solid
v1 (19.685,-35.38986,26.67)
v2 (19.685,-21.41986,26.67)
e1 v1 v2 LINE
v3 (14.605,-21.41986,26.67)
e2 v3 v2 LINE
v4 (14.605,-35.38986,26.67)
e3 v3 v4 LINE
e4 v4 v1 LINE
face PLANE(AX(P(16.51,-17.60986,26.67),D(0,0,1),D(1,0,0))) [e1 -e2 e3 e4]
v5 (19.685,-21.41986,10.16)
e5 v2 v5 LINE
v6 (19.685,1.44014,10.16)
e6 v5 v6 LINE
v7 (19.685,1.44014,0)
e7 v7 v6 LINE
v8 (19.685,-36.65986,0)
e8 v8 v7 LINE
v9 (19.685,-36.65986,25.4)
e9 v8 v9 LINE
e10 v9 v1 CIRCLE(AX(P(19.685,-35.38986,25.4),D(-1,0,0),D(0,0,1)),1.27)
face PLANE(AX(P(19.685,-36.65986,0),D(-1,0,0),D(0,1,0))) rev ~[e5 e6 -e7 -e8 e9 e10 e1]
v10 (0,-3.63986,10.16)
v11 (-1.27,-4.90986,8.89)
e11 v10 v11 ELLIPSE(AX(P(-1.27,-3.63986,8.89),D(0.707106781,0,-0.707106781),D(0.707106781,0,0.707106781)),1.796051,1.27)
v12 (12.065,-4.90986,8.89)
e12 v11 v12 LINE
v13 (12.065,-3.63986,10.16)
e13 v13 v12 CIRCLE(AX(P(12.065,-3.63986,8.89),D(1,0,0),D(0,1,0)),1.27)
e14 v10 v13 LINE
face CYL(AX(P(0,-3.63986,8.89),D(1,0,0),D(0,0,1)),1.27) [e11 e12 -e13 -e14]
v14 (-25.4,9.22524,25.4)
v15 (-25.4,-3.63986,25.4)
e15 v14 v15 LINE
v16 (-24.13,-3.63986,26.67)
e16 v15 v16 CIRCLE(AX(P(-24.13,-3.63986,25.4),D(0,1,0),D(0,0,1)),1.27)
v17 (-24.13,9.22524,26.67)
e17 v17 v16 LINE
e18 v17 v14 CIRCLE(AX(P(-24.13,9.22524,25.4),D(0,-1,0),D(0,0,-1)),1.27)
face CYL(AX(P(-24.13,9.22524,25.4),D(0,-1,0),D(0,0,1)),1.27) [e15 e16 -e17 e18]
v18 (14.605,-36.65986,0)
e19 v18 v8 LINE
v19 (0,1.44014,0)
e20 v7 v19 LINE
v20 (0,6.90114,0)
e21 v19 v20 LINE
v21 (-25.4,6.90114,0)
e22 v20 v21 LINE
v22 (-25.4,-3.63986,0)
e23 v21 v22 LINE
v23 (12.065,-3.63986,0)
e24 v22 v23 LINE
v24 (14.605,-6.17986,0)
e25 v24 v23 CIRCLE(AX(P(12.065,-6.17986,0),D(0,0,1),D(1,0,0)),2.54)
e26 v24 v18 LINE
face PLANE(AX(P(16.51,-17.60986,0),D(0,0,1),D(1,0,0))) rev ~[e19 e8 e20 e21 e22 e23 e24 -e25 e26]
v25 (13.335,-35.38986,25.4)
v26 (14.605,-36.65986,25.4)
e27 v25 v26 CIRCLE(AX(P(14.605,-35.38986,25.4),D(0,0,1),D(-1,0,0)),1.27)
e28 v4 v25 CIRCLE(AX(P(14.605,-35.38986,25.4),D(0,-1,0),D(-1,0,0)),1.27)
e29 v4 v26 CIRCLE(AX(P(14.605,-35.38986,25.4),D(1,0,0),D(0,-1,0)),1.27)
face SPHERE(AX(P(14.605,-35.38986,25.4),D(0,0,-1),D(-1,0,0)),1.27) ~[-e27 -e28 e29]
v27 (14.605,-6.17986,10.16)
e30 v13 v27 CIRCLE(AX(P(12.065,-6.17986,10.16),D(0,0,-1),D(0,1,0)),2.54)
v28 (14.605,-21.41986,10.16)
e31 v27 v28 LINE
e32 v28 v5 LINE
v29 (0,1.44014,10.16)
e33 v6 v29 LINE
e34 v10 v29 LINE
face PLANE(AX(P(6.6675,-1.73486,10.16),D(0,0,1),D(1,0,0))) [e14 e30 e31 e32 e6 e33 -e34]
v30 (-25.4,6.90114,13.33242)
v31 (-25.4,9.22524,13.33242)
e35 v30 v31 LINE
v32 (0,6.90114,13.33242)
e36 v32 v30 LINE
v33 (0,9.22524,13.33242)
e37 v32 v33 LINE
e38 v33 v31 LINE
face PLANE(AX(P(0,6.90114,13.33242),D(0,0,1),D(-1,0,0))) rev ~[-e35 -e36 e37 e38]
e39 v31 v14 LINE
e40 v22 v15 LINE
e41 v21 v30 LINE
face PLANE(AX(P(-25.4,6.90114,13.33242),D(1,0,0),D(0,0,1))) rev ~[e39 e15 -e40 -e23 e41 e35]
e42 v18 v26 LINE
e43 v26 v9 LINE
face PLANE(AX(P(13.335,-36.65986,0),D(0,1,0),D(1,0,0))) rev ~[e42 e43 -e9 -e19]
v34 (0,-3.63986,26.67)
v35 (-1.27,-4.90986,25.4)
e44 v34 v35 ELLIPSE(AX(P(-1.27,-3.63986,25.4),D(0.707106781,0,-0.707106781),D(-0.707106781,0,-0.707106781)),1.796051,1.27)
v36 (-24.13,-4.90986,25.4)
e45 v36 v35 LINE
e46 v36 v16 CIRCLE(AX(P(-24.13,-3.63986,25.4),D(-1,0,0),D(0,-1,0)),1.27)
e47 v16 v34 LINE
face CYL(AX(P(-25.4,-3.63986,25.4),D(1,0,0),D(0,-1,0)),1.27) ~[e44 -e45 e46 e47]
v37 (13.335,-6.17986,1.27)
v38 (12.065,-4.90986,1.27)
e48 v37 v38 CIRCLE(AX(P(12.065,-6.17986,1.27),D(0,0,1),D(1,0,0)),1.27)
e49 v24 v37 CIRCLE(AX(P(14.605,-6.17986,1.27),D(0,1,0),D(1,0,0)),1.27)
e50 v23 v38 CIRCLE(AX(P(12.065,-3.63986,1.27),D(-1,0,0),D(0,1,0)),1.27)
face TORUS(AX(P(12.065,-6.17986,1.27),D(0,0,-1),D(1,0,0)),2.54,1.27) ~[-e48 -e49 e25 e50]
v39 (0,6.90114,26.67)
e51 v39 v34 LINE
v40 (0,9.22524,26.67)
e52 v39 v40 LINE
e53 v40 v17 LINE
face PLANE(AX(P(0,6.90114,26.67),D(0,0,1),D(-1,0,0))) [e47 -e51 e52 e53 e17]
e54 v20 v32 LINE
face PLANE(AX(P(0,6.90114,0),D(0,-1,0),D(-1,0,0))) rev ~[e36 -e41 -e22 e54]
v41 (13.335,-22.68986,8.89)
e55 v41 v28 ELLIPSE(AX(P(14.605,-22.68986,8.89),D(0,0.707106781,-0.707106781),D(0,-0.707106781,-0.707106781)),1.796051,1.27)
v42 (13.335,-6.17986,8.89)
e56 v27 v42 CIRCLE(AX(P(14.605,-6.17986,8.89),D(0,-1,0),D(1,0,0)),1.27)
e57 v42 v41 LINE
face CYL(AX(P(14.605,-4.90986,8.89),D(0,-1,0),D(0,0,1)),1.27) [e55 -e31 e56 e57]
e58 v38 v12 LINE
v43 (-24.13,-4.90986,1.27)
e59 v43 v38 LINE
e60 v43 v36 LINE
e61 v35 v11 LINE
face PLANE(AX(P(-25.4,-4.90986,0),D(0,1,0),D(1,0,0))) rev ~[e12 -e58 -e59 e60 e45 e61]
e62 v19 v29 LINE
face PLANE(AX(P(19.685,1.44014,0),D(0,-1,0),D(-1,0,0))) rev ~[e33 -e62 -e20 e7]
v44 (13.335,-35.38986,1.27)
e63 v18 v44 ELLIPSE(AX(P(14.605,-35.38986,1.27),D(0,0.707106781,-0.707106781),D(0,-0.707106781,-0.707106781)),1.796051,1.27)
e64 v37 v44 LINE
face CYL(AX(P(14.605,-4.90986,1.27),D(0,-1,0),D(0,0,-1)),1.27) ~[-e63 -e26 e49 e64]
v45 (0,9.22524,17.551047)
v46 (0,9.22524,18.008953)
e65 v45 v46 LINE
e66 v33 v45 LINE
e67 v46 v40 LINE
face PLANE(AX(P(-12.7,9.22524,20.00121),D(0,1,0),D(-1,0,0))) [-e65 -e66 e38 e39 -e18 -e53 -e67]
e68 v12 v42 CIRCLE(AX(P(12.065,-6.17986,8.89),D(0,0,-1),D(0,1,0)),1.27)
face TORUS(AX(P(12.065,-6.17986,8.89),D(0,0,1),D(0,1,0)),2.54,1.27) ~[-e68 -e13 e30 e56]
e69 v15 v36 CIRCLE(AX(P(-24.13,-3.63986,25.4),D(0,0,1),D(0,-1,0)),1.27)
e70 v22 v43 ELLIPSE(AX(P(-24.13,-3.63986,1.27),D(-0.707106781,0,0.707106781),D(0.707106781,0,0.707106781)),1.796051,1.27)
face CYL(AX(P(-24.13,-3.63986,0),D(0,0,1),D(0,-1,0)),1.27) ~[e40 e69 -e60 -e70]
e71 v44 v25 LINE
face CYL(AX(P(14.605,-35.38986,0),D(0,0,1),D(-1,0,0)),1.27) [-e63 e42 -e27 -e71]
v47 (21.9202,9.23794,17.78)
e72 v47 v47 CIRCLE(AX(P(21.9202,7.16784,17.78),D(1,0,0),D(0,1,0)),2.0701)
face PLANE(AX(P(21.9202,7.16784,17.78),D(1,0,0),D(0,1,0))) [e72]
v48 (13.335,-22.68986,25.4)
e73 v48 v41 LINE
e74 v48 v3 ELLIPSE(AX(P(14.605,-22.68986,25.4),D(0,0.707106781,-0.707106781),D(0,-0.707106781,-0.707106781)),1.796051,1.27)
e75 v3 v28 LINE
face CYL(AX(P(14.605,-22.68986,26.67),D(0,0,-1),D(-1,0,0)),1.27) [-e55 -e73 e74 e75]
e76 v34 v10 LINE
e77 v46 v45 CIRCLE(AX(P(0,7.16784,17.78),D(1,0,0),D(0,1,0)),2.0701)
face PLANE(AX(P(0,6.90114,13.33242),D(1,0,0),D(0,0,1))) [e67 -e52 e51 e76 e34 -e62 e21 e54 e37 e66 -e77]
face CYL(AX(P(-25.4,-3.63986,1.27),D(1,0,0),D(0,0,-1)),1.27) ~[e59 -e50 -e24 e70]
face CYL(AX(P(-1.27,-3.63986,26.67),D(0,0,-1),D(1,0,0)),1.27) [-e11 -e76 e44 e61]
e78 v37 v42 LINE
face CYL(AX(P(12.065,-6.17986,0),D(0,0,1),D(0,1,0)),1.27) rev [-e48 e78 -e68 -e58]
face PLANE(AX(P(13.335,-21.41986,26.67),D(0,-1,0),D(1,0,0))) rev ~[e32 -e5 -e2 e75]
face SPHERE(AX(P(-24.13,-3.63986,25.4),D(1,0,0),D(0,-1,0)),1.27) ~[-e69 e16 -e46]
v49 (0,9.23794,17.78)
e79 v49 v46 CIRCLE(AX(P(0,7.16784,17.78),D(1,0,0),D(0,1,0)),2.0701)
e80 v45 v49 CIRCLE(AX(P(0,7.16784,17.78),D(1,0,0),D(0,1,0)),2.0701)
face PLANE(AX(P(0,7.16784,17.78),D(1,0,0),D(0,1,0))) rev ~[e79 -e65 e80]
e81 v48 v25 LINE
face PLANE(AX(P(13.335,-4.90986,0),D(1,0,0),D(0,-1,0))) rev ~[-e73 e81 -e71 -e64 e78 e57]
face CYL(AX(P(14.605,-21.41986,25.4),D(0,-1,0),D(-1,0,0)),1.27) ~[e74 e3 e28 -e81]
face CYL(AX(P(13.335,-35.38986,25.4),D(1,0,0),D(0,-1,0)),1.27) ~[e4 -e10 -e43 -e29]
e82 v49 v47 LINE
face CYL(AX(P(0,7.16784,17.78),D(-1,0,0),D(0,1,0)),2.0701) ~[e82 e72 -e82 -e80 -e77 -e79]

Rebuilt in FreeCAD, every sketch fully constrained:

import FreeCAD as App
import Part
import Sketcher

V = App.Vector
Q = App.Units.Quantity


def edges_at(feature, points):
    """Names of the edges that pass closest to the given points."""
    edges = feature.Shape.Edges
    near = lambda p: min(range(len(edges)), key=lambda i: edges[i].distToShape(Part.Vertex(*p))[0])
    return sorted({f"Edge{near(p) + 1}" for p in points})


def add_polygon(sketch, points):
    """Adds a closed chain of lines whose ends are joined by coincident constraints."""
    first, n = sketch.GeometryCount, len(points)
    for a, b in zip(points, points[1:] + points[:1]):
        sketch.addGeometry(Part.LineSegment(App.Vector(*a, 0), App.Vector(*b, 0)), False)
    for i in range(n):
        sketch.addConstraint(Sketcher.Constraint("Coincident", first + i, 2, first + (i + 1) % n, 1))

doc = App.newDocument("Part")
body = doc.addObject("PartDesign::Body", "Body")

# Sketch on XY plane
sketch1 = body.newObject("Sketcher::SketchObject", "Sketch")
sketch1.AttachmentSupport = (doc.getObject("XY_Plane"), [""])
sketch1.MapMode = "FlatFace"
add_polygon(sketch1, [(19.685, 1.44014), (0, 1.44014), (0, 6.90114), (-25.4, 6.90114), (-25.4, -4.90986), (13.335, -4.90986), (13.335, -36.65986), (19.685, -36.65986)])  # lines 0-7
sketch1.addConstraint([
    Sketcher.Constraint("Horizontal", 0),
    Sketcher.Constraint("Vertical", 1),
    Sketcher.Constraint("Horizontal", 2),
    Sketcher.Constraint("Vertical", 3),
    Sketcher.Constraint("Horizontal", 4),
    Sketcher.Constraint("Vertical", 5),
    Sketcher.Constraint("Horizontal", 6),
    Sketcher.Constraint("Vertical", 7),
    Sketcher.Constraint("PointOnObject", 0, 2, -2),
    Sketcher.Constraint("DistanceX", 2, 2, 2, 1, Q("1 in")),
    Sketcher.Constraint("DistanceY", 7, 1, 7, 2, Q("1.5 in")),
    Sketcher.Constraint("DistanceX", 6, 1, 6, 2, Q("0.25 in")),
    Sketcher.Constraint("DistanceY", 5, 2, 5, 1, Q("1.25 in")),
    Sketcher.Constraint("DistanceX", 0, 2, 0, 1, Q("0.775 in")),
    Sketcher.Constraint("DistanceY", 1, 1, 1, 2, Q("0.215 in")),
    Sketcher.Constraint("DistanceY", -1, 1, 0, 2, Q("1.44014 mm")),
])
pad1 = body.newObject("PartDesign::Pad", "Pad")
pad1.Profile = sketch1
pad1.Length = Q("1.05 in")

# Sketch on XY plane
sketch2 = body.newObject("Sketcher::SketchObject", "Sketch001")
sketch2.AttachmentSupport = (doc.getObject("XY_Plane"), [""])
sketch2.MapMode = "FlatFace"
sketch2.AttachmentOffset = App.Placement(V(0, 0, 1.05 * 25.4), App.Rotation())
add_polygon(sketch2, [(0, 1.44014), (0, -4.90986), (13.335, -4.90986), (13.335, -21.41986), (19.685, -21.41986), (19.685, 1.44014)])  # lines 0-5
sketch2.addConstraint([
    Sketcher.Constraint("Vertical", 0),
    Sketcher.Constraint("Horizontal", 1),
    Sketcher.Constraint("Vertical", 2),
    Sketcher.Constraint("Horizontal", 3),
    Sketcher.Constraint("Vertical", 4),
    Sketcher.Constraint("Horizontal", 5),
    Sketcher.Constraint("PointOnObject", 0, 2, -2),
    Sketcher.Constraint("Equal", 3, 0),
    Sketcher.Constraint("DistanceY", 4, 1, 4, 2, Q("0.9 in")),
    Sketcher.Constraint("DistanceX", 3, 1, 3, 2, Q("0.25 in")),
    Sketcher.Constraint("DistanceX", 1, 1, 1, 2, Q("0.525 in")),
    Sketcher.Constraint("DistanceY", 0, 2, -1, 1, Q("4.90986 mm")),
])
pocket1 = body.newObject("PartDesign::Pocket", "Pocket")
pocket1.Profile = sketch2
pocket1.Length = Q("0.65 in")

# Sketch on XZ plane
sketch3 = body.newObject("Sketcher::SketchObject", "Sketch002")
sketch3.AttachmentSupport = (doc.getObject("XZ_Plane"), [""])
sketch3.MapMode = "FlatFace"
sketch3.AttachmentOffset = App.Placement(V(0, 0, -6.90114), App.Rotation())
add_polygon(sketch3, [(0, 26.67), (0, 13.33242), (-25.4, 13.33242), (-25.4, 26.67)])  # lines 0-3
sketch3.addConstraint([
    Sketcher.Constraint("Vertical", 0),
    Sketcher.Constraint("Horizontal", 1),
    Sketcher.Constraint("Vertical", 2),
    Sketcher.Constraint("Horizontal", 3),
    Sketcher.Constraint("PointOnObject", 0, 2, -2),
    Sketcher.Constraint("DistanceX", 1, 2, 1, 1, Q("1 in")),
    Sketcher.Constraint("DistanceY", -1, 1, 2, 2, Q("1.05 in")),
    Sketcher.Constraint("DistanceY", 0, 2, 0, 1, Q("13.33758 mm")),
])
pad2 = body.newObject("PartDesign::Pad", "Pad001")
pad2.Profile = sketch3
pad2.Length = Q("0.0915 in")
pad2.Reversed = True

# Sketch on YZ plane
sketch4 = body.newObject("Sketcher::SketchObject", "Sketch003")
sketch4.AttachmentSupport = (doc.getObject("YZ_Plane"), [""])
sketch4.MapMode = "FlatFace"
sketch4.addGeometry(Part.Circle(V(7.16784, 17.78, 0), V(0, 0, 1), 2.0701), False)
sketch4.addConstraint([
    Sketcher.Constraint("Diameter", 0, Q("0.163 in")),
    Sketcher.Constraint("DistanceY", -1, 1, 0, 3, Q("0.7 in")),
    Sketcher.Constraint("DistanceX", -1, 1, 0, 3, Q("7.16784 mm")),
])
pad3 = body.newObject("PartDesign::Pad", "Pad002")
pad3.Profile = sketch4
pad3.Length = Q("0.863 in")
doc.recompute()

fillet = body.newObject("PartDesign::Fillet", "Fillet")
fillet.Base = (pad3, edges_at(pad3, [
    (-6.032, -4.91, 0),
    (13.335, -4.91, 5.08),
    (6.668, -4.91, 10.16),
    (0, -4.91, 18.415),
    (-12.7, -4.91, 26.67),
    (-25.4, -4.91, 13.335),
    (13.335, -20.785, 0),
    (13.335, -36.66, 13.335),
    (13.335, -29.04, 26.67),
    (13.335, -21.42, 18.415),
    (13.335, -13.165, 10.16),
    (-25.4, 0.996, 26.67),
    (16.51, -36.66, 26.67),
]))
fillet.Radius = Q("0.05 in")

doc.recompute()
